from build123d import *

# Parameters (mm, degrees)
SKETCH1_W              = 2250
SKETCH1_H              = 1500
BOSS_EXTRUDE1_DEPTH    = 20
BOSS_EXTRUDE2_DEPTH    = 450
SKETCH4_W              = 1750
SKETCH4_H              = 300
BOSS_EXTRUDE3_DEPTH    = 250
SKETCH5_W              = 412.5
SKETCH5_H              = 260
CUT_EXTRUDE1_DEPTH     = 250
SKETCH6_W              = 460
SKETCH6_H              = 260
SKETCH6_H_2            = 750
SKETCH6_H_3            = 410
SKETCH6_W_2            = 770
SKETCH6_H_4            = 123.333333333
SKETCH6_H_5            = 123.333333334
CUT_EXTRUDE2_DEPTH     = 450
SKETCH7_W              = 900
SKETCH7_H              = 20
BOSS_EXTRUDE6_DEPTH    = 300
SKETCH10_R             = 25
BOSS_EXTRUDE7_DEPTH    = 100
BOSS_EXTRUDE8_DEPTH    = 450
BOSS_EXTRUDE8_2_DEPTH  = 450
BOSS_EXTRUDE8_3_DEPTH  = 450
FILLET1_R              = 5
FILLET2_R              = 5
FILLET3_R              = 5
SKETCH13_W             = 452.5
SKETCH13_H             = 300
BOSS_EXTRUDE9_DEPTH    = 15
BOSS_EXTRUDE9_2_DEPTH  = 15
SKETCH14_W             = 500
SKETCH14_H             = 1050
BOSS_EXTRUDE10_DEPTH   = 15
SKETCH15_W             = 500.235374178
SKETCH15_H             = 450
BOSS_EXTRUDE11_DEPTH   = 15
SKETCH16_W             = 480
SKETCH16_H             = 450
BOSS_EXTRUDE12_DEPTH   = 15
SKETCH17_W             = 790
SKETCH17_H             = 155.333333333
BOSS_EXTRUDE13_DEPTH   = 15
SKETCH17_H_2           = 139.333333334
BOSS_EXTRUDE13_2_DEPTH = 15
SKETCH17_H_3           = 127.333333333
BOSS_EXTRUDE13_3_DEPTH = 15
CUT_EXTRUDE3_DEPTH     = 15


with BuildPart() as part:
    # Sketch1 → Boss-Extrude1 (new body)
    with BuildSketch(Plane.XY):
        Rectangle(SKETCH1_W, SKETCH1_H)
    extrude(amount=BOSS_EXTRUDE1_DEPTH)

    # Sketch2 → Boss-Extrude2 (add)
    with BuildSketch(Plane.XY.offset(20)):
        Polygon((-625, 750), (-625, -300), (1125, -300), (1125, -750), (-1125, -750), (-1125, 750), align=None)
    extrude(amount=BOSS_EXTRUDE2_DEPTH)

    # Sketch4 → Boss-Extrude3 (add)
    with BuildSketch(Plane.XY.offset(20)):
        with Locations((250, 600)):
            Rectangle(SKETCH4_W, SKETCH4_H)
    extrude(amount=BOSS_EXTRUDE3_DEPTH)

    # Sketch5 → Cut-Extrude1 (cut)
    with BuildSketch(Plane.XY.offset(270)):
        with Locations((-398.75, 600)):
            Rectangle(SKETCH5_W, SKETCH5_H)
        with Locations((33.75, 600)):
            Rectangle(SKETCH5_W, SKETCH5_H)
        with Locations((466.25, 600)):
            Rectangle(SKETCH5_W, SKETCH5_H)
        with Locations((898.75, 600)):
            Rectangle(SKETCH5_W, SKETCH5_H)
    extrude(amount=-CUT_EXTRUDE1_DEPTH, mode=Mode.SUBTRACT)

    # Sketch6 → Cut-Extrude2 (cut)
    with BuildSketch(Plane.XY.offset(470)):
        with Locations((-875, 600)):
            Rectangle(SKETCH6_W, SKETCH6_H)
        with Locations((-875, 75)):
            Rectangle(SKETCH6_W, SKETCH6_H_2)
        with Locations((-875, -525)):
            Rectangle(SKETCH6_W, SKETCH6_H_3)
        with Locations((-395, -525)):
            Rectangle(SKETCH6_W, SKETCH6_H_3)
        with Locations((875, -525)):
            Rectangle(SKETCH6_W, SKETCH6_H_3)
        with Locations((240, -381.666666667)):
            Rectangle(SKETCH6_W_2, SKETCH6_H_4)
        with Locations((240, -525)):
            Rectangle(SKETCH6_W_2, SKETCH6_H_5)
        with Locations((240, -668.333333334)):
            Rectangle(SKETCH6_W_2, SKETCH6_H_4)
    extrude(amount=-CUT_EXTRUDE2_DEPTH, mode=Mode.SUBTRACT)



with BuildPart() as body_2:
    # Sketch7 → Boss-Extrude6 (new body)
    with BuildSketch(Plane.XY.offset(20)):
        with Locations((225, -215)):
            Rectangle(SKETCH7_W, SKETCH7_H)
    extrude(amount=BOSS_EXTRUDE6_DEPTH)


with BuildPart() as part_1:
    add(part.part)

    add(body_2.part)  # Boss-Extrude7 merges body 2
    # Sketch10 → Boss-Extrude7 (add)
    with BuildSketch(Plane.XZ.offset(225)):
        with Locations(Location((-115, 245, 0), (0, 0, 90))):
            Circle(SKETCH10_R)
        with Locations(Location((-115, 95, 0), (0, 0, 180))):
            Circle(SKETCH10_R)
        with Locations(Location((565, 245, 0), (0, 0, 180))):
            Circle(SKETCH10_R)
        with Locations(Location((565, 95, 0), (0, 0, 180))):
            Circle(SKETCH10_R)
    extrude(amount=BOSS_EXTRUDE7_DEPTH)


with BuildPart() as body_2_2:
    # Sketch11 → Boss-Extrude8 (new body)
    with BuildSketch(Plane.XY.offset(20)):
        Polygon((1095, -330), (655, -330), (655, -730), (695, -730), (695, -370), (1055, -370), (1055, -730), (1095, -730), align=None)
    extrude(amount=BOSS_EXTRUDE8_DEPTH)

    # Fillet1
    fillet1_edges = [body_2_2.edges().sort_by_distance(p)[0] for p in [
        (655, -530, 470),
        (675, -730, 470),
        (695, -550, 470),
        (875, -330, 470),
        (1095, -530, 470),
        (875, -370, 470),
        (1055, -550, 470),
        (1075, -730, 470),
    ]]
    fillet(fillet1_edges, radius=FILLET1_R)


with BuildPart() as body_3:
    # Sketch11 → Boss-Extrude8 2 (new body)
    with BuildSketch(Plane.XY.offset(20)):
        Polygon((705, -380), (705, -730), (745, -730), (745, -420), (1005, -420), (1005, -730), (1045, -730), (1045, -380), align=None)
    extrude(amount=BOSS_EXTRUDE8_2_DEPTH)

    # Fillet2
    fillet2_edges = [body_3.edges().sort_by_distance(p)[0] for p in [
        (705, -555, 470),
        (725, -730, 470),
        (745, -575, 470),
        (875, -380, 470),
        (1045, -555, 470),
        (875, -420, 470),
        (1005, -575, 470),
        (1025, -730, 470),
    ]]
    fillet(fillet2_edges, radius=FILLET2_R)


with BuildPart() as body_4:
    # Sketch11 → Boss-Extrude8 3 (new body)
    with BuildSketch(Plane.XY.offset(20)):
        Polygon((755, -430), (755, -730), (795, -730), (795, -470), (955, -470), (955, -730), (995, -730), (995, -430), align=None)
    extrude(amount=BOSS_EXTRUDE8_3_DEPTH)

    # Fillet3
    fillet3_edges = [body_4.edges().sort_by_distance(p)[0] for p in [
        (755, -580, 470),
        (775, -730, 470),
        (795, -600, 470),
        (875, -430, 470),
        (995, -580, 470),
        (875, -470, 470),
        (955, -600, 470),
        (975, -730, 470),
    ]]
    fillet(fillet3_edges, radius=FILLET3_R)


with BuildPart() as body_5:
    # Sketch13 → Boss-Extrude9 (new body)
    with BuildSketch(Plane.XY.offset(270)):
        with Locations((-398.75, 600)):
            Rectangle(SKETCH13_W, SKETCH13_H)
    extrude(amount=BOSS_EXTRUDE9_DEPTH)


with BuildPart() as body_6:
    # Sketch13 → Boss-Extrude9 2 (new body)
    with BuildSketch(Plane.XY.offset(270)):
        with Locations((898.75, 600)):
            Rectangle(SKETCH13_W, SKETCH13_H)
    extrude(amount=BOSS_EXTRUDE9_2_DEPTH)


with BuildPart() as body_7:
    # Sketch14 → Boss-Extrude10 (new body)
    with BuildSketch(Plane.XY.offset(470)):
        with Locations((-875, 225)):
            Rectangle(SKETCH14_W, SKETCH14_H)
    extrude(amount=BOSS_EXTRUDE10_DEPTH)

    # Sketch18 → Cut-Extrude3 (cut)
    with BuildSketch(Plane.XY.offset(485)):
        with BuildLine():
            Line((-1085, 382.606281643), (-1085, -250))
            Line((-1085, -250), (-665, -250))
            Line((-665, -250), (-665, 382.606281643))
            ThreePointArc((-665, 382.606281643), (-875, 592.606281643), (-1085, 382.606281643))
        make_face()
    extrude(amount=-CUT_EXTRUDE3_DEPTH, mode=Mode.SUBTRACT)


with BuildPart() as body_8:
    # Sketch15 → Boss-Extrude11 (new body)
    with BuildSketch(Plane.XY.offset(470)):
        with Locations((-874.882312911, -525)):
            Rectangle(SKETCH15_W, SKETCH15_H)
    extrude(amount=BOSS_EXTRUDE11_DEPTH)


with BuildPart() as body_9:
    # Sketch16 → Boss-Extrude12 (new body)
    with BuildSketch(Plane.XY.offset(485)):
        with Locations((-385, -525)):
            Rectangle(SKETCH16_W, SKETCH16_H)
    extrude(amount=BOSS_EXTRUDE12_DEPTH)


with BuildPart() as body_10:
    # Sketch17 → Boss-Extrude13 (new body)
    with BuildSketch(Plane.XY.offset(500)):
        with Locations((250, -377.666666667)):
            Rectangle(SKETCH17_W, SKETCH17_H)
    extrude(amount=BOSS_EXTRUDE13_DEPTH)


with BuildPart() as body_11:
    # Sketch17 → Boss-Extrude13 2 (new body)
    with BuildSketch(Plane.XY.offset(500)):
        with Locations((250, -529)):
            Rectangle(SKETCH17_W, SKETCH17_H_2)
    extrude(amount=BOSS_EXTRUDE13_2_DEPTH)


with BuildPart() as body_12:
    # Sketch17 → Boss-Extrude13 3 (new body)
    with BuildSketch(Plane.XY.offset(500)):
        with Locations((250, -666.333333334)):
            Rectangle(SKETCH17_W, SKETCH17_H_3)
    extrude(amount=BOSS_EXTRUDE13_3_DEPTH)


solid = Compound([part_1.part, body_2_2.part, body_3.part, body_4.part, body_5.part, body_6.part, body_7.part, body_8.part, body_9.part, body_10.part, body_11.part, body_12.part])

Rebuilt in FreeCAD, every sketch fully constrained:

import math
import FreeCAD as App
import Part
import Sketcher


def edges_at(feature, points):
    """Names of the edges that pass closest to the given points."""
    edges = feature.Shape.Edges
    near = lambda p: min(range(len(edges)), key=lambda i: edges[i].distToShape(Part.Vertex(*p))[0])
    return sorted({f"Edge{near(p) + 1}" for p in points})


def add_polygon(sketch, points):
    """Adds a closed chain of lines whose ends are joined by coincident constraints."""
    first, n = sketch.GeometryCount, len(points)
    for a, b in zip(points, points[1:] + points[:1]):
        sketch.addGeometry(Part.LineSegment(App.Vector(*a, 0), App.Vector(*b, 0)), False)
    for i in range(n):
        sketch.addConstraint(Sketcher.Constraint("Coincident", first + i, 2, first + (i + 1) % n, 1))

doc = App.newDocument("Part")
body = doc.addObject("PartDesign::Body", "Body")

sketch1 = doc.addObject("Sketcher::SketchObject", "Sketch")
body.addObject(sketch1)
sketch1.AttachmentSupport = (doc.XY_Plane, [""])
sketch1.MapMode = "FlatFace"
add_polygon(sketch1, [(-1125, 750), (-1125, -750), (1125, -750), (1125, 750)])
sketch1.addConstraint([
    Sketcher.Constraint("Vertical", 0),
    Sketcher.Constraint("Horizontal", 1),
    Sketcher.Constraint("Vertical", 2),
    Sketcher.Constraint("Horizontal", 3),
    Sketcher.Constraint("Symmetric", 0, 2, 2, 2, -1, 1),
    Sketcher.Constraint("DistanceX", 1, 1, 1, 2, 2250.0),
    Sketcher.Constraint("DistanceY", 0, 2, 0, 1, 1500.0),
])
pad1 = doc.addObject("PartDesign::Pad", "Pad")
body.addObject(pad1)
pad1.Profile = sketch1
pad1.Length = 20

sketch2 = doc.addObject("Sketcher::SketchObject", "Sketch001")
body.addObject(sketch2)
sketch2.AttachmentSupport = (doc.XY_Plane, [""])
sketch2.MapMode = "FlatFace"
sketch2.AttachmentOffset = App.Placement(App.Vector(0, 0, 20), App.Rotation())
add_polygon(sketch2, [(-625, -300), (-625, 750), (-1125, 750), (-1125, -750), (1125, -750), (1125, -300)])
sketch2.addConstraint([
    Sketcher.Constraint("Vertical", 0),
    Sketcher.Constraint("Horizontal", 1),
    Sketcher.Constraint("Vertical", 2),
    Sketcher.Constraint("Horizontal", 3),
    Sketcher.Constraint("Vertical", 4),
    Sketcher.Constraint("Horizontal", 5),
    Sketcher.Constraint("Symmetric", 1, 2, 3, 2, -1, 1),
    Sketcher.Constraint("DistanceX", 1, 2, 1, 1, 500.0),
    Sketcher.Constraint("DistanceX", 3, 1, 3, 2, 2250.0),
    Sketcher.Constraint("DistanceY", 0, 1, 0, 2, 1050.0),
    Sketcher.Constraint("DistanceY", 2, 2, 2, 1, 1500.0),
])
pad2 = doc.addObject("PartDesign::Pad", "Pad001")
body.addObject(pad2)
pad2.Profile = sketch2
pad2.Length = 450

sketch3 = doc.addObject("Sketcher::SketchObject", "Sketch002")
body.addObject(sketch3)
sketch3.AttachmentSupport = (doc.XY_Plane, [""])
sketch3.MapMode = "FlatFace"
sketch3.AttachmentOffset = App.Placement(App.Vector(0, 0, 20), App.Rotation())
add_polygon(sketch3, [(-625, 750), (-625, 450), (1125, 450), (1125, 750)])
sketch3.addConstraint([
    Sketcher.Constraint("Vertical", 0),
    Sketcher.Constraint("Horizontal", 1),
    Sketcher.Constraint("Vertical", 2),
    Sketcher.Constraint("Horizontal", 3),
    Sketcher.Constraint("DistanceX", 1, 1, 1, 2, 1750.0),
    Sketcher.Constraint("DistanceY", 0, 2, 0, 1, 300.0),
    Sketcher.Constraint("DistanceX", 0, 2, -1, 1, 625.0),
    Sketcher.Constraint("DistanceY", -1, 1, 0, 2, 450.0),
])
pad3 = doc.addObject("PartDesign::Pad", "Pad002")
body.addObject(pad3)
pad3.Profile = sketch3
pad3.Length = 250

sketch4 = doc.addObject("Sketcher::SketchObject", "Sketch003")
body.addObject(sketch4)
sketch4.AttachmentSupport = (doc.XY_Plane, [""])
sketch4.MapMode = "FlatFace"
sketch4.AttachmentOffset = App.Placement(App.Vector(0, 0, 270), App.Rotation())
add_polygon(sketch4, [(-605, 730), (-605, 470), (-192.5, 470), (-192.5, 730)])
add_polygon(sketch4, [(-172.5, 730), (-172.5, 470), (240, 470), (240, 730)])
add_polygon(sketch4, [(260, 730), (260, 470), (672.5, 470), (672.5, 730)])
add_polygon(sketch4, [(692.5, 730), (692.5, 470), (1105, 470), (1105, 730)])
sketch4.addConstraint([
    Sketcher.Constraint("Vertical", 0),
    Sketcher.Constraint("Horizontal", 1),
    Sketcher.Constraint("Vertical", 2),
    Sketcher.Constraint("Horizontal", 3),
    Sketcher.Constraint("Vertical", 4),
    Sketcher.Constraint("Horizontal", 5),
    Sketcher.Constraint("Vertical", 6),
    Sketcher.Constraint("Horizontal", 7),
    Sketcher.Constraint("Vertical", 8),
    Sketcher.Constraint("Horizontal", 9),
    Sketcher.Constraint("Vertical", 10),
    Sketcher.Constraint("Horizontal", 11),
    Sketcher.Constraint("Vertical", 12),
    Sketcher.Constraint("Horizontal", 13),
    Sketcher.Constraint("Vertical", 14),
    Sketcher.Constraint("Horizontal", 15),
    Sketcher.Constraint("Horizontal", 1, 2, 4, 2),
    Sketcher.Constraint("Horizontal", 3, 2, 6, 2),
    Sketcher.Constraint("Horizontal", 5, 2, 8, 2),
    Sketcher.Constraint("Horizontal", 7, 2, 10, 2),
    Sketcher.Constraint("Horizontal", 9, 2, 12, 2),
    Sketcher.Constraint("Horizontal", 11, 2, 14, 2),
    Sketcher.Constraint("Equal", 3, 5),
    Sketcher.Constraint("Equal", 7, 9),
    Sketcher.Constraint("Equal", 11, 13),
    Sketcher.Constraint("DistanceY", 0, 2, 0, 1, 260.0),
    Sketcher.Constraint("DistanceX", 1, 1, 1, 2, 412.5),
    Sketcher.Constraint("DistanceX", 0, 2, -1, 1, 605.0),
    Sketcher.Constraint("DistanceY", -1, 1, 0, 2, 470.0),
    Sketcher.Constraint("DistanceX", -1, 1, 5, 2, 240.0),
    Sketcher.Constraint("DistanceX", -1, 1, 8, 2, 260.0),
    Sketcher.Constraint("DistanceX", -1, 1, 13, 2, 1105.0),
])
pocket1 = doc.addObject("PartDesign::Pocket", "Pocket")
body.addObject(pocket1)
pocket1.Profile = sketch4
pocket1.Length = 250

sketch5 = doc.addObject("Sketcher::SketchObject", "Sketch004")
body.addObject(sketch5)
sketch5.AttachmentSupport = (doc.XY_Plane, [""])
sketch5.MapMode = "FlatFace"
sketch5.AttachmentOffset = App.Placement(App.Vector(0, 0, 470), App.Rotation())
add_polygon(sketch5, [(-1105, 730), (-1105, 470), (-645, 470), (-645, 730)])
add_polygon(sketch5, [(-1105, 450), (-1105, -300), (-645, -300), (-645, 450)])
add_polygon(sketch5, [(-1105, -320), (-1105, -730), (-645, -730), (-645, -320)])
add_polygon(sketch5, [(-625, -320), (-625, -730), (-165, -730), (-165, -320)])
add_polygon(sketch5, [(645, -320), (645, -730), (1105, -730), (1105, -320)])
add_polygon(sketch5, [(-145, -320), (-145, -443.333333), (625, -443.333333), (625, -320)])
add_polygon(sketch5, [(-145, -463.333333), (-145, -586.666667), (625, -586.666667), (625, -463.333333)])
add_polygon(sketch5, [(-145, -606.666667), (-145, -730), (625, -730), (625, -606.666667)])
sketch5.addConstraint([
    Sketcher.Constraint("Vertical", 0),
    Sketcher.Constraint("Horizontal", 1),
    Sketcher.Constraint("Vertical", 2),
    Sketcher.Constraint("Horizontal", 3),
    Sketcher.Constraint("Vertical", 4),
    Sketcher.Constraint("Horizontal", 5),
    Sketcher.Constraint("Vertical", 6),
    Sketcher.Constraint("Horizontal", 7),
    Sketcher.Constraint("Vertical", 8),
    Sketcher.Constraint("Horizontal", 9),
    Sketcher.Constraint("Vertical", 10),
    Sketcher.Constraint("Horizontal", 11),
    Sketcher.Constraint("Vertical", 12),
    Sketcher.Constraint("Horizontal", 13),
    Sketcher.Constraint("Vertical", 14),
    Sketcher.Constraint("Horizontal", 15),
    Sketcher.Constraint("Vertical", 16),
    Sketcher.Constraint("Horizontal", 17),
    Sketcher.Constraint("Vertical", 18),
    Sketcher.Constraint("Horizontal", 19),
    Sketcher.Constraint("Vertical", 20),
    Sketcher.Constraint("Horizontal", 21),
    Sketcher.Constraint("Vertical", 22),
    Sketcher.Constraint("Horizontal", 23),
    Sketcher.Constraint("Vertical", 24),
    Sketcher.Constraint("Horizontal", 25),
    Sketcher.Constraint("Vertical", 26),
    Sketcher.Constraint("Horizontal", 27),
    Sketcher.Constraint("Vertical", 28),
    Sketcher.Constraint("Horizontal", 29),
    Sketcher.Constraint("Vertical", 30),
    Sketcher.Constraint("Horizontal", 31),
    Sketcher.Constraint("Symmetric", 2, 2, 16, 2, -1, 1),
    Sketcher.Constraint("Symmetric", 9, 2, 16, 2, -2),
    Sketcher.Constraint("Symmetric", 11, 2, 18, 2, -2),
    Sketcher.Constraint("Symmetric", 15, 2, 22, 2, -2),
    Sketcher.Constraint("Symmetric", 12, 2, 29, 2, -2),
    Sketcher.Constraint("Horizontal", 9, 2, 12, 2),
    Sketcher.Constraint("Horizontal", 11, 2, 14, 2),
    Sketcher.Constraint("Vertical", 3, 2, 4, 2),
    Sketcher.Constraint("Vertical", 2, 2, 5, 2),
    Sketcher.Constraint("Vertical", 7, 2, 8, 2),
    Sketcher.Constraint("Vertical", 23, 2, 24, 2),
    Sketcher.Constraint("Vertical", 22, 2, 25, 2),
    Sketcher.Constraint("Vertical", 27, 2, 28, 2),
    Sketcher.Constraint("Equal", 11, 13),
    Sketcher.Constraint("Equal", 22, 24),
    Sketcher.Constraint("Equal", 26, 28),
    Sketcher.Constraint("DistanceX", 1, 1, 1, 2, 460.0),
    Sketcher.Constraint("DistanceX", 21, 1, 21, 2, 770.0),
    Sketcher.Constraint("DistanceY", 0, 2, 0, 1, 260.0),
    Sketcher.Constraint("DistanceY", 4, 2, 4, 1, 750.0),
    Sketcher.Constraint("DistanceY", 8, 2, 8, 1, 410.0),
    Sketcher.Constraint("DistanceX", 0, 2, -1, 1, 1105.0),
    Sketcher.Constraint("DistanceY", -1, 1, 0, 2, 470.0),
    Sketcher.Constraint("DistanceY", 4, 2, -1, 1, 300.0),
    Sketcher.Constraint("DistanceX", 12, 2, -1, 1, 625.0),
    Sketcher.Constraint("DistanceY", 26, 2, 21, 2, 20.0),
    Sketcher.Constraint("DistanceY", 30, 2, 25, 2, 20.0),
])
pocket2 = doc.addObject("PartDesign::Pocket", "Pocket001")
body.addObject(pocket2)
pocket2.Profile = sketch5
pocket2.Length = 450
body2 = doc.addObject("PartDesign::Body", "Body001")

sketch6 = doc.addObject("Sketcher::SketchObject", "Sketch005")
body2.addObject(sketch6)
sketch6.AttachmentSupport = (doc.getObject("XY_Plane001"), [""])
sketch6.MapMode = "FlatFace"
sketch6.AttachmentOffset = App.Placement(App.Vector(0, 0, 20), App.Rotation())
add_polygon(sketch6, [(-225, -205), (-225, -225), (675, -225), (675, -205)])
sketch6.addConstraint([
    Sketcher.Constraint("Vertical", 0),
    Sketcher.Constraint("Horizontal", 1),
    Sketcher.Constraint("Vertical", 2),
    Sketcher.Constraint("Horizontal", 3),
    Sketcher.Constraint("DistanceX", 1, 1, 1, 2, 900.0),
    Sketcher.Constraint("DistanceY", 0, 2, 0, 1, 20.0),
    Sketcher.Constraint("DistanceX", 0, 2, -1, 1, 225.0),
    Sketcher.Constraint("DistanceY", 0, 2, -1, 1, 225.0),
])
pad4 = doc.addObject("PartDesign::Pad", "Pad003")
body2.addObject(pad4)
pad4.Profile = sketch6
pad4.Length = 300
doc.recompute()

boolean = doc.addObject("PartDesign::Boolean", "Boolean")
body.addObject(boolean)
boolean.Type = "Fuse"
boolean.addObjects([body2])

sketch7 = doc.addObject("Sketcher::SketchObject", "Sketch006")
body.addObject(sketch7)
sketch7.AttachmentSupport = (doc.XZ_Plane, [""])
sketch7.MapMode = "FlatFace"
sketch7.AttachmentOffset = App.Placement(App.Vector(0, 0, 225), App.Rotation())
sketch7.addGeometry([
    Part.Circle(App.Vector(-115, 245, 0), App.Vector(0, 0, 1), 25),
    Part.Circle(App.Vector(-115, 95, 0), App.Vector(0, 0, 1), 25),
    Part.Circle(App.Vector(565, 245, 0), App.Vector(0, 0, 1), 25),
    Part.Circle(App.Vector(565, 95, 0), App.Vector(0, 0, 1), 25),
], False)
sketch7.addConstraint([
    Sketcher.Constraint("Equal", 0, 1),
    Sketcher.Constraint("Equal", 1, 2),
    Sketcher.Constraint("Equal", 2, 3),
    Sketcher.Constraint("Horizontal", 0, 3, 2, 3),
    Sketcher.Constraint("Horizontal", 1, 3, 3, 3),
    Sketcher.Constraint("Vertical", 0, 3, 1, 3),
    Sketcher.Constraint("Vertical", 2, 3, 3, 3),
    Sketcher.Constraint("Diameter", 0, 50.0),
    Sketcher.Constraint("DistanceX", 0, 3, -1, 1, 115.0),
    Sketcher.Constraint("DistanceY", -1, 1, 0, 3, 245.0),
    Sketcher.Constraint("DistanceY", -1, 1, 1, 3, 95.0),
    Sketcher.Constraint("DistanceX", -1, 1, 2, 3, 565.0),
])
pad5 = doc.addObject("PartDesign::Pad", "Pad004")
body.addObject(pad5)
pad5.Profile = sketch7
pad5.Length = 100
body3 = doc.addObject("PartDesign::Body", "Body002")

sketch8 = doc.addObject("Sketcher::SketchObject", "Sketch007")
body3.addObject(sketch8)
sketch8.AttachmentSupport = (doc.getObject("XY_Plane002"), [""])
sketch8.MapMode = "FlatFace"
sketch8.AttachmentOffset = App.Placement(App.Vector(0, 0, 20), App.Rotation())
add_polygon(sketch8, [(1095, -330), (655, -330), (655, -730), (695, -730), (695, -370), (1055, -370), (1055, -730), (1095, -730)])
sketch8.addConstraint([
    Sketcher.Constraint("Horizontal", 0),
    Sketcher.Constraint("Vertical", 1),
    Sketcher.Constraint("Horizontal", 2),
    Sketcher.Constraint("Vertical", 3),
    Sketcher.Constraint("Horizontal", 4),
    Sketcher.Constraint("Vertical", 5),
    Sketcher.Constraint("Horizontal", 6),
    Sketcher.Constraint("Vertical", 7),
    Sketcher.Constraint("Horizontal", 2, 2, 5, 2),
    Sketcher.Constraint("Equal", 2, 6),
    Sketcher.Constraint("Equal", 4, 3),
    Sketcher.Constraint("DistanceX", 0, 2, 0, 1, 440.0),
    Sketcher.Constraint("DistanceX", 2, 1, 2, 2, 40.0),
    Sketcher.Constraint("DistanceY", 1, 2, 1, 1, 400.0),
    Sketcher.Constraint("DistanceX", -1, 1, 0, 2, 655.0),
    Sketcher.Constraint("DistanceY", 0, 2, -1, 1, 330.0),
])
pad6 = doc.addObject("PartDesign::Pad", "Pad005")
body3.addObject(pad6)
pad6.Profile = sketch8
pad6.Length = 450
doc.recompute()

fillet = doc.addObject("PartDesign::Fillet", "Fillet")
body3.addObject(fillet)
fillet.Base = (pad6, edges_at(pad6, [
    (655, -530, 470),
    (675, -730, 470),
    (695, -550, 470),
    (875, -330, 470),
    (1095, -530, 470),
    (875, -370, 470),
    (1055, -550, 470),
    (1075, -730, 470),
]))
fillet.Radius = 5
body4 = doc.addObject("PartDesign::Body", "Body003")

sketch9 = doc.addObject("Sketcher::SketchObject", "Sketch008")
body4.addObject(sketch9)
sketch9.AttachmentSupport = (doc.getObject("XY_Plane003"), [""])
sketch9.MapMode = "FlatFace"
sketch9.AttachmentOffset = App.Placement(App.Vector(0, 0, 20), App.Rotation())
add_polygon(sketch9, [(705, -380), (705, -730), (745, -730), (745, -420), (1005, -420), (1005, -730), (1045, -730), (1045, -380)])
sketch9.addConstraint([
    Sketcher.Constraint("Vertical", 0),
    Sketcher.Constraint("Horizontal", 1),
    Sketcher.Constraint("Vertical", 2),
    Sketcher.Constraint("Horizontal", 3),
    Sketcher.Constraint("Vertical", 4),
    Sketcher.Constraint("Horizontal", 5),
    Sketcher.Constraint("Vertical", 6),
    Sketcher.Constraint("Horizontal", 7),
    Sketcher.Constraint("Horizontal", 1, 2, 4, 2),
    Sketcher.Constraint("Equal", 1, 5),
    Sketcher.Constraint("DistanceX", 1, 1, 1, 2, 40.0),
    Sketcher.Constraint("DistanceX", 3, 1, 3, 2, 260.0),
    Sketcher.Constraint("DistanceY", 0, 2, 0, 1, 350.0),
    Sketcher.Constraint("DistanceY", 2, 1, 2, 2, 310.0),
    Sketcher.Constraint("DistanceX", -1, 1, 0, 2, 705.0),
    Sketcher.Constraint("DistanceY", 0, 2, -1, 1, 730.0),
])
pad7 = doc.addObject("PartDesign::Pad", "Pad006")
body4.addObject(pad7)
pad7.Profile = sketch9
pad7.Length = 450
doc.recompute()

fillet2 = doc.addObject("PartDesign::Fillet", "Fillet001")
body4.addObject(fillet2)
fillet2.Base = (pad7, edges_at(pad7, [
    (705, -555, 470),
    (725, -730, 470),
    (745, -575, 470),
    (875, -380, 470),
    (1045, -555, 470),
    (875, -420, 470),
    (1005, -575, 470),
    (1025, -730, 470),
]))
fillet2.Radius = 5
body5 = doc.addObject("PartDesign::Body", "Body004")

sketch10 = doc.addObject("Sketcher::SketchObject", "Sketch009")
body5.addObject(sketch10)
sketch10.AttachmentSupport = (doc.getObject("XY_Plane004"), [""])
sketch10.MapMode = "FlatFace"
sketch10.AttachmentOffset = App.Placement(App.Vector(0, 0, 20), App.Rotation())
add_polygon(sketch10, [(755, -430), (755, -730), (795, -730), (795, -470), (955, -470), (955, -730), (995, -730), (995, -430)])
sketch10.addConstraint([
    Sketcher.Constraint("Vertical", 0),
    Sketcher.Constraint("Horizontal", 1),
    Sketcher.Constraint("Vertical", 2),
    Sketcher.Constraint("Horizontal", 3),
    Sketcher.Constraint("Vertical", 4),
    Sketcher.Constraint("Horizontal", 5),
    Sketcher.Constraint("Vertical", 6),
    Sketcher.Constraint("Horizontal", 7),
    Sketcher.Constraint("Horizontal", 1, 2, 4, 2),
    Sketcher.Constraint("Equal", 1, 5),
    Sketcher.Constraint("DistanceX", 1, 1, 1, 2, 40.0),
    Sketcher.Constraint("DistanceX", 3, 1, 3, 2, 160.0),
    Sketcher.Constraint("DistanceY", 0, 2, 0, 1, 300.0),
    Sketcher.Constraint("DistanceY", 2, 1, 2, 2, 260.0),
    Sketcher.Constraint("DistanceX", -1, 1, 0, 2, 755.0),
    Sketcher.Constraint("DistanceY", 0, 2, -1, 1, 730.0),
])
pad8 = doc.addObject("PartDesign::Pad", "Pad007")
body5.addObject(pad8)
pad8.Profile = sketch10
pad8.Length = 450
doc.recompute()

fillet3 = doc.addObject("PartDesign::Fillet", "Fillet002")
body5.addObject(fillet3)
fillet3.Base = (pad8, edges_at(pad8, [
    (755, -580, 470),
    (775, -730, 470),
    (795, -600, 470),
    (875, -430, 470),
    (995, -580, 470),
    (875, -470, 470),
    (955, -600, 470),
    (975, -730, 470),
]))
fillet3.Radius = 5
body6 = doc.addObject("PartDesign::Body", "Body005")

sketch11 = doc.addObject("Sketcher::SketchObject", "Sketch010")
body6.addObject(sketch11)
sketch11.AttachmentSupport = (doc.getObject("XY_Plane005"), [""])
sketch11.MapMode = "FlatFace"
sketch11.AttachmentOffset = App.Placement(App.Vector(0, 0, 270), App.Rotation())
add_polygon(sketch11, [(-625, 750), (-625, 450), (-172.5, 450), (-172.5, 750)])
sketch11.addConstraint([
    Sketcher.Constraint("Vertical", 0),
    Sketcher.Constraint("Horizontal", 1),
    Sketcher.Constraint("Vertical", 2),
    Sketcher.Constraint("Horizontal", 3),
    Sketcher.Constraint("DistanceY", 0, 2, 0, 1, 300.0),
    Sketcher.Constraint("DistanceX", 1, 1, 1, 2, 452.5),
    Sketcher.Constraint("DistanceX", 0, 2, -1, 1, 625.0),
    Sketcher.Constraint("DistanceY", -1, 1, 0, 2, 450.0),
])
pad9 = doc.addObject("PartDesign::Pad", "Pad008")
body6.addObject(pad9)
pad9.Profile = sketch11
pad9.Length = 15
body7 = doc.addObject("PartDesign::Body", "Body006")

sketch12 = doc.addObject("Sketcher::SketchObject", "Sketch011")
body7.addObject(sketch12)
sketch12.AttachmentSupport = (doc.getObject("XY_Plane006"), [""])
sketch12.MapMode = "FlatFace"
sketch12.AttachmentOffset = App.Placement(App.Vector(0, 0, 270), App.Rotation())
add_polygon(sketch12, [(672.5, 750), (672.5, 450), (1125, 450), (1125, 750)])
sketch12.addConstraint([
    Sketcher.Constraint("Vertical", 0),
    Sketcher.Constraint("Horizontal", 1),
    Sketcher.Constraint("Vertical", 2),
    Sketcher.Constraint("Horizontal", 3),
    Sketcher.Constraint("DistanceY", 0, 2, 0, 1, 300.0),
    Sketcher.Constraint("DistanceX", 1, 1, 1, 2, 452.5),
    Sketcher.Constraint("DistanceY", -1, 1, 0, 2, 450.0),
    Sketcher.Constraint("DistanceX", -1, 1, 1, 2, 1125.0),
])
pad10 = doc.addObject("PartDesign::Pad", "Pad009")
body7.addObject(pad10)
pad10.Profile = sketch12
pad10.Length = 15
body8 = doc.addObject("PartDesign::Body", "Body007")

sketch13 = doc.addObject("Sketcher::SketchObject", "Sketch012")
body8.addObject(sketch13)
sketch13.AttachmentSupport = (doc.getObject("XY_Plane007"), [""])
sketch13.MapMode = "FlatFace"
sketch13.AttachmentOffset = App.Placement(App.Vector(0, 0, 470), App.Rotation())
add_polygon(sketch13, [(-1125, 750), (-1125, -300), (-625, -300), (-625, 750)])
sketch13.addConstraint([
    Sketcher.Constraint("Vertical", 0),
    Sketcher.Constraint("Horizontal", 1),
    Sketcher.Constraint("Vertical", 2),
    Sketcher.Constraint("Horizontal", 3),
    Sketcher.Constraint("DistanceX", 1, 1, 1, 2, 500.0),
    Sketcher.Constraint("DistanceY", 0, 2, 0, 1, 1050.0),
    Sketcher.Constraint("DistanceX", 0, 2, -1, 1, 1125.0),
    Sketcher.Constraint("DistanceY", 0, 2, -1, 1, 300.0),
])
pad11 = doc.addObject("PartDesign::Pad", "Pad010")
body8.addObject(pad11)
pad11.Profile = sketch13
pad11.Length = 15

sketch14 = doc.addObject("Sketcher::SketchObject", "Sketch013")
body8.addObject(sketch14)
sketch14.AttachmentSupport = (doc.getObject("XY_Plane007"), [""])
sketch14.MapMode = "FlatFace"
sketch14.AttachmentOffset = App.Placement(App.Vector(0, 0, 485), App.Rotation())
sketch14.addGeometry([
    Part.LineSegment(App.Vector(-1085, 382.606282, 0), App.Vector(-1085, -250, 0)),
    Part.LineSegment(App.Vector(-1085, -250, 0), App.Vector(-665, -250, 0)),
    Part.LineSegment(App.Vector(-665, -250, 0), App.Vector(-665, 382.606282, 0)),
    Part.ArcOfCircle(Part.Circle(App.Vector(-875, 382.606282, 0), App.Vector(0, 0, 1), 210), math.radians(0), math.radians(180)),
], False)
sketch14.addConstraint([
    Sketcher.Constraint("Coincident", 0, 2, 1, 1),
    Sketcher.Constraint("Coincident", 1, 2, 2, 1),
    Sketcher.Constraint("Tangent", 2, 2, 3, 1),
    Sketcher.Constraint("Tangent", 3, 2, 0, 1),
    Sketcher.Constraint("Vertical", 0),
    Sketcher.Constraint("Horizontal", 1),
    Sketcher.Constraint("Vertical", 2),
    Sketcher.Constraint("Radius", 3, 210.0),
    Sketcher.Constraint("DistanceX", 3, 3, -1, 1, 875.0),
    Sketcher.Constraint("DistanceY", 0, 2, -1, 1, 250.0),
    Sketcher.Constraint("DistanceY", 0, 2, 0, 1, 632.606282),
])
pocket3 = doc.addObject("PartDesign::Pocket", "Pocket002")
body8.addObject(pocket3)
pocket3.Profile = sketch14
pocket3.Length = 15
body9 = doc.addObject("PartDesign::Body", "Body008")

sketch15 = doc.addObject("Sketcher::SketchObject", "Sketch014")
body9.addObject(sketch15)
sketch15.AttachmentSupport = (doc.getObject("XY_Plane008"), [""])
sketch15.MapMode = "FlatFace"
sketch15.AttachmentOffset = App.Placement(App.Vector(0, 0, 470), App.Rotation())
add_polygon(sketch15, [(-1125, -300), (-1125, -750), (-624.764626, -750), (-624.764626, -300)])
sketch15.addConstraint([
    Sketcher.Constraint("Vertical", 0),
    Sketcher.Constraint("Horizontal", 1),
    Sketcher.Constraint("Vertical", 2),
    Sketcher.Constraint("Horizontal", 3),
    Sketcher.Constraint("DistanceY", 0, 2, 0, 1, 450.0),
    Sketcher.Constraint("DistanceX", 0, 2, -1, 1, 1125.0),
    Sketcher.Constraint("DistanceY", 0, 2, -1, 1, 750.0),
    Sketcher.Constraint("DistanceX", 1, 1, 1, 2, 500.235374),
])
pad12 = doc.addObject("PartDesign::Pad", "Pad011")
body9.addObject(pad12)
pad12.Profile = sketch15
pad12.Length = 15
body10 = doc.addObject("PartDesign::Body", "Body009")

sketch16 = doc.addObject("Sketcher::SketchObject", "Sketch015")
body10.addObject(sketch16)
sketch16.AttachmentSupport = (doc.getObject("XY_Plane009"), [""])
sketch16.MapMode = "FlatFace"
sketch16.AttachmentOffset = App.Placement(App.Vector(0, 0, 485), App.Rotation())
add_polygon(sketch16, [(-625, -300), (-625, -750), (-145, -750), (-145, -300)])
sketch16.addConstraint([
    Sketcher.Constraint("Vertical", 0),
    Sketcher.Constraint("Horizontal", 1),
    Sketcher.Constraint("Vertical", 2),
    Sketcher.Constraint("Horizontal", 3),
    Sketcher.Constraint("DistanceX", 1, 1, 1, 2, 480.0),
    Sketcher.Constraint("DistanceY", 0, 2, 0, 1, 450.0),
    Sketcher.Constraint("DistanceX", 0, 2, -1, 1, 625.0),
    Sketcher.Constraint("DistanceY", 0, 2, -1, 1, 750.0),
])
pad13 = doc.addObject("PartDesign::Pad", "Pad012")
body10.addObject(pad13)
pad13.Profile = sketch16
pad13.Length = 15
body11 = doc.addObject("PartDesign::Body", "Body010")

sketch17 = doc.addObject("Sketcher::SketchObject", "Sketch016")
body11.addObject(sketch17)
sketch17.AttachmentSupport = (doc.getObject("XY_Plane010"), [""])
sketch17.MapMode = "FlatFace"
sketch17.AttachmentOffset = App.Placement(App.Vector(0, 0, 500), App.Rotation())
add_polygon(sketch17, [(-145, -300), (-145, -455.333333), (645, -455.333333), (645, -300)])
sketch17.addConstraint([
    Sketcher.Constraint("Vertical", 0),
    Sketcher.Constraint("Horizontal", 1),
    Sketcher.Constraint("Vertical", 2),
    Sketcher.Constraint("Horizontal", 3),
    Sketcher.Constraint("DistanceX", 1, 1, 1, 2, 790.0),
    Sketcher.Constraint("DistanceX", 0, 2, -1, 1, 145.0),
    Sketcher.Constraint("DistanceY", 2, 2, -1, 1, 300.0),
    Sketcher.Constraint("DistanceY", 0, 2, 0, 1, 155.333333),
])
pad14 = doc.addObject("PartDesign::Pad", "Pad013")
body11.addObject(pad14)
pad14.Profile = sketch17
pad14.Length = 15
body12 = doc.addObject("PartDesign::Body", "Body011")

sketch18 = doc.addObject("Sketcher::SketchObject", "Sketch017")
body12.addObject(sketch18)
sketch18.AttachmentSupport = (doc.getObject("XY_Plane011"), [""])
sketch18.MapMode = "FlatFace"
sketch18.AttachmentOffset = App.Placement(App.Vector(0, 0, 500), App.Rotation())
add_polygon(sketch18, [(-145, -459.333333), (-145, -598.666667), (645, -598.666667), (645, -459.333333)])
sketch18.addConstraint([
    Sketcher.Constraint("Vertical", 0),
    Sketcher.Constraint("Horizontal", 1),
    Sketcher.Constraint("Vertical", 2),
    Sketcher.Constraint("Horizontal", 3),
    Sketcher.Constraint("DistanceX", 1, 1, 1, 2, 790.0),
    Sketcher.Constraint("DistanceX", 0, 2, -1, 1, 145.0),
    Sketcher.Constraint("DistanceY", 0, 2, 0, 1, 139.333333),
    Sketcher.Constraint("DistanceY", 0, 2, -1, 1, 598.666667),
])
pad15 = doc.addObject("PartDesign::Pad", "Pad014")
body12.addObject(pad15)
pad15.Profile = sketch18
pad15.Length = 15
body13 = doc.addObject("PartDesign::Body", "Body012")

sketch19 = doc.addObject("Sketcher::SketchObject", "Sketch018")
body13.addObject(sketch19)
sketch19.AttachmentSupport = (doc.getObject("XY_Plane012"), [""])
sketch19.MapMode = "FlatFace"
sketch19.AttachmentOffset = App.Placement(App.Vector(0, 0, 500), App.Rotation())
add_polygon(sketch19, [(-145, -602.666667), (-145, -730), (645, -730), (645, -602.666667)])
sketch19.addConstraint([
    Sketcher.Constraint("Vertical", 0),
    Sketcher.Constraint("Horizontal", 1),
    Sketcher.Constraint("Vertical", 2),
    Sketcher.Constraint("Horizontal", 3),
    Sketcher.Constraint("DistanceX", 1, 1, 1, 2, 790.0),
    Sketcher.Constraint("DistanceX", 0, 2, -1, 1, 145.0),
    Sketcher.Constraint("DistanceY", 0, 2, -1, 1, 730.0),
    Sketcher.Constraint("DistanceY", 0, 2, 0, 1, 127.333333),
])
pad16 = doc.addObject("PartDesign::Pad", "Pad015")
body13.addObject(pad16)
pad16.Profile = sketch19
pad16.Length = 15

doc.recompute()
